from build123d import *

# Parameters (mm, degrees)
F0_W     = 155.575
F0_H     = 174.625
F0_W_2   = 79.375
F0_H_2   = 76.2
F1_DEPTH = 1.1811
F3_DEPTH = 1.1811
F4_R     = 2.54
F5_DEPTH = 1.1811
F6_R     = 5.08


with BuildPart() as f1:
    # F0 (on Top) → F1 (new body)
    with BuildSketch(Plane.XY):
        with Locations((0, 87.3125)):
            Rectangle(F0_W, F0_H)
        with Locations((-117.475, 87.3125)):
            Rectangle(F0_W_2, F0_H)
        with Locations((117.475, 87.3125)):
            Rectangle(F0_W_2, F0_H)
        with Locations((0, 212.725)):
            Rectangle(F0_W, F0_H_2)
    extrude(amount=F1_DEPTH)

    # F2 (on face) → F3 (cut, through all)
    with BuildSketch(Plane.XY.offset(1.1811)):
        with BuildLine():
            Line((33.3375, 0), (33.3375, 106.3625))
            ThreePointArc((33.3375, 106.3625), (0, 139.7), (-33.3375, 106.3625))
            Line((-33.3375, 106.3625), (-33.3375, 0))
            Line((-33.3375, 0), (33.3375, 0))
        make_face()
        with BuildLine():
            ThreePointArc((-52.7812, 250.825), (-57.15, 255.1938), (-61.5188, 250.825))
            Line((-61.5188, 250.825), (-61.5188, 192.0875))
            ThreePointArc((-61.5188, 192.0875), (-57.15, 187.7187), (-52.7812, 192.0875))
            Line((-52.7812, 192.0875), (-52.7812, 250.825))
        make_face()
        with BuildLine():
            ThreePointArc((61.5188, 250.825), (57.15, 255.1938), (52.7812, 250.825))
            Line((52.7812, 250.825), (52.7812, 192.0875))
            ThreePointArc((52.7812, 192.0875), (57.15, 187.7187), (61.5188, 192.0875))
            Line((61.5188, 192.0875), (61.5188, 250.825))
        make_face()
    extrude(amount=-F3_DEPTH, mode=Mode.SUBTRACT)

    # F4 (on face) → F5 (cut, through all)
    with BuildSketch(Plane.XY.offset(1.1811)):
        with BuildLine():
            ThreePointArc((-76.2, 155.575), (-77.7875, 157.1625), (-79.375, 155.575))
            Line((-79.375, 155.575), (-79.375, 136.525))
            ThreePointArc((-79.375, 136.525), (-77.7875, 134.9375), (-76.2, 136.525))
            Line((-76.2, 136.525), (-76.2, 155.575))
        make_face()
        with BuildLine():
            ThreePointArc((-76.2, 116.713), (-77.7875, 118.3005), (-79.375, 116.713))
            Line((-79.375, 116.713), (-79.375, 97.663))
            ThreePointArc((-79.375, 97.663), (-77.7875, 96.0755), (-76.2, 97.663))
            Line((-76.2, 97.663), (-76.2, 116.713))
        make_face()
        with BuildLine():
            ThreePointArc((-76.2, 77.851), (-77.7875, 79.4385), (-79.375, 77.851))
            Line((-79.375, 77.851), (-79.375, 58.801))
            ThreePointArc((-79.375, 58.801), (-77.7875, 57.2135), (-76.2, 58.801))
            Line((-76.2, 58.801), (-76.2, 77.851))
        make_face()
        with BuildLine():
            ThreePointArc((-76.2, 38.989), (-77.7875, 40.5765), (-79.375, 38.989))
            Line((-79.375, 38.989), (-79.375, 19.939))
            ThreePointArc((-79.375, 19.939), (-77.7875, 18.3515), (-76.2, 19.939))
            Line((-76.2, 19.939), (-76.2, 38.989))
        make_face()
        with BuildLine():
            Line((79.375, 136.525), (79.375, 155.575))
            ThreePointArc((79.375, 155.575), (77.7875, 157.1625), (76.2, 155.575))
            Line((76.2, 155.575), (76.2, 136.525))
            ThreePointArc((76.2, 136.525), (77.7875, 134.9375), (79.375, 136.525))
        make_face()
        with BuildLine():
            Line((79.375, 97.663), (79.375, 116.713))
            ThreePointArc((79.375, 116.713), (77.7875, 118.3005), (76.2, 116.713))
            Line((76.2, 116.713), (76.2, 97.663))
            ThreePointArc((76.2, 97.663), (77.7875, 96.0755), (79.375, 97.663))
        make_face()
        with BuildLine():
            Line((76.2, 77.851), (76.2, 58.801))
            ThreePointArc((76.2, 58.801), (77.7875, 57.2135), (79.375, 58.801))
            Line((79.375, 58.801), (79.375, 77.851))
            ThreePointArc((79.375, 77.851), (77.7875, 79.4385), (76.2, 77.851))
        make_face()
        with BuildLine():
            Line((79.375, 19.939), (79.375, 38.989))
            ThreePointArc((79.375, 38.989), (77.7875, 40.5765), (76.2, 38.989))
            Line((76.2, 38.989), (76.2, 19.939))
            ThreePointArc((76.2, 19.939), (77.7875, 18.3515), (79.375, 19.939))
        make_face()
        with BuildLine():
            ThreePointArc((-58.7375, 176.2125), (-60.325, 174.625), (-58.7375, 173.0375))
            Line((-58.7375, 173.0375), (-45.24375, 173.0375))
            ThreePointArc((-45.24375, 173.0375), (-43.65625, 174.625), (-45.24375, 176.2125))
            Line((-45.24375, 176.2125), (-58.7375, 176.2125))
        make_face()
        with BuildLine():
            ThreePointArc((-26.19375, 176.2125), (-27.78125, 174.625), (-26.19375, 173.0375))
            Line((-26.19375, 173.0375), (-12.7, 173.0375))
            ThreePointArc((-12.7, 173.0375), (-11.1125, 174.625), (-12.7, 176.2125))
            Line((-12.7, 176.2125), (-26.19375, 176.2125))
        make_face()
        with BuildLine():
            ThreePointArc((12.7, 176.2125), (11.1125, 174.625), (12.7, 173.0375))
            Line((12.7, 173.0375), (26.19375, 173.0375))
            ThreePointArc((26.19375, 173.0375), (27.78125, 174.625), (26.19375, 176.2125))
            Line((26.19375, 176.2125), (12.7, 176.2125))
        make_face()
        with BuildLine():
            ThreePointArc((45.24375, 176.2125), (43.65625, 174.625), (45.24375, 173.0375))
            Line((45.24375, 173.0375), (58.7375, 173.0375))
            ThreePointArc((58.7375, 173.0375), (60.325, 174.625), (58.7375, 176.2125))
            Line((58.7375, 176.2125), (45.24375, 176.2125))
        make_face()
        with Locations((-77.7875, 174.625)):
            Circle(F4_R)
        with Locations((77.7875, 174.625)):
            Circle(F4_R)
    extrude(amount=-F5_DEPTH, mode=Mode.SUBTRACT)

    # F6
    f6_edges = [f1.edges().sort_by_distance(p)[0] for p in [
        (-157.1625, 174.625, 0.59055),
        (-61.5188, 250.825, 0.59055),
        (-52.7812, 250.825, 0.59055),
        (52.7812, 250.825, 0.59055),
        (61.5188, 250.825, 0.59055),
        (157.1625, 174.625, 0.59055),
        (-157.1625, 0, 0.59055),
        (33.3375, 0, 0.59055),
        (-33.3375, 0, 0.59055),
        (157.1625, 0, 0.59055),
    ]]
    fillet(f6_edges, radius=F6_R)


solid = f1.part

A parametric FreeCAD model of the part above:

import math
import FreeCAD as App
import Part
import Sketcher

V = App.Vector
Q = App.Units.Quantity


def edges_at(feature, points):
    """Names of the edges that pass closest to the given points."""
    edges = feature.Shape.Edges
    near = lambda p: min(range(len(edges)), key=lambda i: edges[i].distToShape(Part.Vertex(*p))[0])
    return sorted({f"Edge{near(p) + 1}" for p in points})

doc = App.newDocument("Part")
body = doc.addObject("PartDesign::Body", "Body")

# Sketch on XY plane
sketch1 = body.newObject("Sketcher::SketchObject", "Sketch")
sketch1.AttachmentSupport = (doc.getObject("XY_Plane"), [""])
sketch1.MapMode = "FlatFace"
sketch1.addGeometry(Part.LineSegment(V(-157, 175, 0), V(-157, 0, 0)), False)
sketch1.addGeometry(Part.LineSegment(V(-157, 0, 0), V(157, 0, 0)), False)
sketch1.addGeometry(Part.LineSegment(V(157, 0, 0), V(157, 175, 0)), False)
sketch1.addGeometry(Part.LineSegment(V(157, 175, 0), V(78, 175, 0)), False)
sketch1.addGeometry(Part.LineSegment(V(78, 175, 0), V(78, 251, 0)), False)
sketch1.addGeometry(Part.LineSegment(V(78, 251, 0), V(-78, 251, 0)), False)
sketch1.addGeometry(Part.LineSegment(V(-78, 251, 0), V(-78, 175, 0)), False)
sketch1.addGeometry(Part.LineSegment(V(-78, 175, 0), V(-157, 175, 0)), False)
sketch1.addConstraint(Sketcher.Constraint("Coincident", 0, 2, 1, 1))
sketch1.addConstraint(Sketcher.Constraint("Coincident", 1, 2, 2, 1))
sketch1.addConstraint(Sketcher.Constraint("Coincident", 2, 2, 3, 1))
sketch1.addConstraint(Sketcher.Constraint("Coincident", 3, 2, 4, 1))
sketch1.addConstraint(Sketcher.Constraint("Coincident", 4, 2, 5, 1))
sketch1.addConstraint(Sketcher.Constraint("Coincident", 5, 2, 6, 1))
sketch1.addConstraint(Sketcher.Constraint("Coincident", 6, 2, 7, 1))
sketch1.addConstraint(Sketcher.Constraint("Coincident", 7, 2, 0, 1))
sketch1.addConstraint(Sketcher.Constraint("Vertical", 0))
sketch1.addConstraint(Sketcher.Constraint("Horizontal", 1))
sketch1.addConstraint(Sketcher.Constraint("Vertical", 2))
sketch1.addConstraint(Sketcher.Constraint("Horizontal", 3))
sketch1.addConstraint(Sketcher.Constraint("Vertical", 4))
sketch1.addConstraint(Sketcher.Constraint("Horizontal", 5))
sketch1.addConstraint(Sketcher.Constraint("Vertical", 6))
sketch1.addConstraint(Sketcher.Constraint("Horizontal", 7))
sketch1.addConstraint(Sketcher.Constraint("Symmetric", 0, 2, 1, 2, -1, 1))
sketch1.addConstraint(Sketcher.Constraint("Symmetric", 3, 2, 6, 2, -2))
sketch1.addConstraint(Sketcher.Constraint("DistanceY", 4, 1, 4, 2, Q("3 in")))
sketch1.addConstraint(Sketcher.Constraint("DistanceX", 1, 1, 1, 2, Q("12.375 in")))
sketch1.addConstraint(Sketcher.Constraint("DistanceX", 3, 2, 3, 1, Q("3.125 in")))
sketch1.addConstraint(Sketcher.Constraint("DistanceY", 0, 2, 0, 1, Q("6.875 in")))
pad1 = body.newObject("PartDesign::Pad", "Pad")
pad1.Profile = sketch1
pad1.Length = Q("0.0465 in")

# Sketch on XY plane
sketch2 = body.newObject("Sketcher::SketchObject", "Sketch001")
sketch2.AttachmentSupport = (doc.getObject("XY_Plane"), [""])
sketch2.MapMode = "FlatFace"
sketch2.AttachmentOffset = App.Placement(V(0, 0, 0.0465 * 25.4), App.Rotation())
sketch2.addGeometry(Part.LineSegment(V(33.3, 0, 0), V(33.3, 106.4, 0)), False)
sketch2.addGeometry(Part.ArcOfCircle(Part.Circle(V(0, 106.4, 0), V(0, 0, 1), 33.3), math.radians(0), math.radians(180)), False)
sketch2.addGeometry(Part.LineSegment(V(-33.3, 106.4, 0), V(-33.3, 0, 0)), False)
sketch2.addGeometry(Part.LineSegment(V(-33.3, 0, 0), V(33.3, 0, 0)), False)
sketch2.addGeometry(Part.ArcOfCircle(Part.Circle(V(-57.1, 250.8, 0), V(0, 0, 1), 4.4), math.radians(0), math.radians(180)), False)
sketch2.addGeometry(Part.LineSegment(V(-61.5, 250.8, 0), V(-61.5, 192.1, 0)), False)
sketch2.addGeometry(Part.ArcOfCircle(Part.Circle(V(-57.1, 192.1, 0), V(0, 0, 1), 4.4), math.radians(180), math.radians(360)), False)
sketch2.addGeometry(Part.LineSegment(V(-52.8, 192.1, 0), V(-52.8, 250.8, 0)), False)
sketch2.addGeometry(Part.ArcOfCircle(Part.Circle(V(57.1, 250.8, 0), V(0, 0, 1), 4.4), math.radians(0), math.radians(180)), False)
sketch2.addGeometry(Part.LineSegment(V(52.8, 250.8, 0), V(52.8, 192.1, 0)), False)
sketch2.addGeometry(Part.ArcOfCircle(Part.Circle(V(57.1, 192.1, 0), V(0, 0, 1), 4.4), math.radians(180), math.radians(360)), False)
sketch2.addGeometry(Part.LineSegment(V(61.5, 192.1, 0), V(61.5, 250.8, 0)), False)
sketch2.addConstraint(Sketcher.Constraint("Tangent", 0, 2, 1, 1))
sketch2.addConstraint(Sketcher.Constraint("Tangent", 1, 2, 2, 1))
sketch2.addConstraint(Sketcher.Constraint("Coincident", 2, 2, 3, 1))
sketch2.addConstraint(Sketcher.Constraint("Coincident", 3, 2, 0, 1))
sketch2.addConstraint(Sketcher.Constraint("Tangent", 4, 2, 5, 1))
sketch2.addConstraint(Sketcher.Constraint("Tangent", 5, 2, 6, 1))
sketch2.addConstraint(Sketcher.Constraint("Tangent", 6, 2, 7, 1))
sketch2.addConstraint(Sketcher.Constraint("Tangent", 7, 2, 4, 1))
sketch2.addConstraint(Sketcher.Constraint("Tangent", 8, 2, 9, 1))
sketch2.addConstraint(Sketcher.Constraint("Tangent", 9, 2, 10, 1))
sketch2.addConstraint(Sketcher.Constraint("Tangent", 10, 2, 11, 1))
sketch2.addConstraint(Sketcher.Constraint("Tangent", 11, 2, 8, 1))
sketch2.addConstraint(Sketcher.Constraint("Vertical", 0))
sketch2.addConstraint(Sketcher.Constraint("Vertical", 2))
sketch2.addConstraint(Sketcher.Constraint("Horizontal", 3))
sketch2.addConstraint(Sketcher.Constraint("Vertical", 5))
sketch2.addConstraint(Sketcher.Constraint("Vertical", 7))
sketch2.addConstraint(Sketcher.Constraint("Vertical", 9))
sketch2.addConstraint(Sketcher.Constraint("Vertical", 11))
sketch2.addConstraint(Sketcher.Constraint("Equal", 6, 8))
sketch2.addConstraint(Sketcher.Constraint("Symmetric", 2, 2, 3, 2, -1, 1))
sketch2.addConstraint(Sketcher.Constraint("Symmetric", 4, 3, 8, 3, -2))
sketch2.addConstraint(Sketcher.Constraint("Horizontal", 6, 3, 10, 3))
sketch2.addConstraint(Sketcher.Constraint("Radius", 1, Q("1.3125 in")))
sketch2.addConstraint(Sketcher.Constraint("Radius", 4, Q("0.172 in")))
sketch2.addConstraint(Sketcher.Constraint("DistanceX", 4, 3, 8, 3, Q("4.5 in")))
sketch2.addConstraint(Sketcher.Constraint("DistanceY", 0, 1, 0, 2, Q("4.1875 in")))
sketch2.addConstraint(Sketcher.Constraint("DistanceY", 5, 2, 5, 1, Q("2.3125 in")))
sketch2.addConstraint(Sketcher.Constraint("DistanceY", -1, 1, 4, 3, Q("9.875 in")))
pocket1 = body.newObject("PartDesign::Pocket", "Pocket")
pocket1.Profile = sketch2
pocket1.Type = "ThroughAll"

# Sketch on XY plane
sketch3 = body.newObject("Sketcher::SketchObject", "Sketch002")
sketch3.AttachmentSupport = (doc.getObject("XY_Plane"), [""])
sketch3.MapMode = "FlatFace"
sketch3.AttachmentOffset = App.Placement(V(0, 0, 0.0465 * 25.4), App.Rotation())
sketch3.addGeometry(Part.ArcOfCircle(Part.Circle(V(-77.8, 155.6, 0), V(0, 0, 1), 1.6), math.radians(0), math.radians(180)), False)
sketch3.addGeometry(Part.LineSegment(V(-79.4, 155.6, 0), V(-79.4, 136.5, 0)), False)
sketch3.addGeometry(Part.ArcOfCircle(Part.Circle(V(-77.8, 136.5, 0), V(0, 0, 1), 1.6), math.radians(180), math.radians(360)), False)
sketch3.addGeometry(Part.LineSegment(V(-76.2, 136.5, 0), V(-76.2, 155.6, 0)), False)
sketch3.addGeometry(Part.ArcOfCircle(Part.Circle(V(-77.8, 116.7, 0), V(0, 0, 1), 1.6), math.radians(0), math.radians(180)), False)
sketch3.addGeometry(Part.LineSegment(V(-79.4, 116.7, 0), V(-79.4, 97.7, 0)), False)
sketch3.addGeometry(Part.ArcOfCircle(Part.Circle(V(-77.8, 97.7, 0), V(0, 0, 1), 1.6), math.radians(180), math.radians(360)), False)
sketch3.addGeometry(Part.LineSegment(V(-76.2, 97.7, 0), V(-76.2, 116.7, 0)), False)
sketch3.addGeometry(Part.ArcOfCircle(Part.Circle(V(-77.8, 77.9, 0), V(0, 0, 1), 1.6), math.radians(0), math.radians(180)), False)
sketch3.addGeometry(Part.LineSegment(V(-79.4, 77.9, 0), V(-79.4, 58.8, 0)), False)
sketch3.addGeometry(Part.ArcOfCircle(Part.Circle(V(-77.8, 58.8, 0), V(0, 0, 1), 1.6), math.radians(180), math.radians(360)), False)
sketch3.addGeometry(Part.LineSegment(V(-76.2, 58.8, 0), V(-76.2, 77.9, 0)), False)
sketch3.addGeometry(Part.ArcOfCircle(Part.Circle(V(-77.8, 39, 0), V(0, 0, 1), 1.6), math.radians(0), math.radians(180)), False)
sketch3.addGeometry(Part.LineSegment(V(-79.4, 39, 0), V(-79.4, 19.9, 0)), False)
sketch3.addGeometry(Part.ArcOfCircle(Part.Circle(V(-77.8, 19.9, 0), V(0, 0, 1), 1.6), math.radians(180), math.radians(360)), False)
sketch3.addGeometry(Part.LineSegment(V(-76.2, 19.9, 0), V(-76.2, 39, 0)), False)
sketch3.addGeometry(Part.LineSegment(V(79.4, 136.5, 0), V(79.4, 155.6, 0)), False)
sketch3.addGeometry(Part.ArcOfCircle(Part.Circle(V(77.8, 155.6, 0), V(0, 0, 1), 1.6), math.radians(0), math.radians(180)), False)
sketch3.addGeometry(Part.LineSegment(V(76.2, 155.6, 0), V(76.2, 136.5, 0)), False)
sketch3.addGeometry(Part.ArcOfCircle(Part.Circle(V(77.8, 136.5, 0), V(0, 0, 1), 1.6), math.radians(180), math.radians(360)), False)
sketch3.addGeometry(Part.LineSegment(V(79.4, 97.7, 0), V(79.4, 116.7, 0)), False)
sketch3.addGeometry(Part.ArcOfCircle(Part.Circle(V(77.8, 116.7, 0), V(0, 0, 1), 1.6), math.radians(0), math.radians(180)), False)
sketch3.addGeometry(Part.LineSegment(V(76.2, 116.7, 0), V(76.2, 97.7, 0)), False)
sketch3.addGeometry(Part.ArcOfCircle(Part.Circle(V(77.8, 97.7, 0), V(0, 0, 1), 1.6), math.radians(180), math.radians(360)), False)
sketch3.addGeometry(Part.LineSegment(V(76.2, 77.9, 0), V(76.2, 58.8, 0)), False)
sketch3.addGeometry(Part.ArcOfCircle(Part.Circle(V(77.8, 58.8, 0), V(0, 0, 1), 1.6), math.radians(180), math.radians(360)), False)
sketch3.addGeometry(Part.LineSegment(V(79.4, 58.8, 0), V(79.4, 77.9, 0)), False)
sketch3.addGeometry(Part.ArcOfCircle(Part.Circle(V(77.8, 77.9, 0), V(0, 0, 1), 1.6), math.radians(0), math.radians(180)), False)
sketch3.addGeometry(Part.LineSegment(V(79.4, 19.9, 0), V(79.4, 39, 0)), False)
sketch3.addGeometry(Part.ArcOfCircle(Part.Circle(V(77.8, 39, 0), V(0, 0, 1), 1.6), math.radians(0), math.radians(180)), False)
sketch3.addGeometry(Part.LineSegment(V(76.2, 39, 0), V(76.2, 19.9, 0)), False)
sketch3.addGeometry(Part.ArcOfCircle(Part.Circle(V(77.8, 19.9, 0), V(0, 0, 1), 1.6), math.radians(180), math.radians(360)), False)
sketch3.addGeometry(Part.ArcOfCircle(Part.Circle(V(-58.7, 174.6, 0), V(0, 0, 1), 1.6), math.radians(90), math.radians(270)), False)
sketch3.addGeometry(Part.LineSegment(V(-58.7, 173, 0), V(-45.2, 173, 0)), False)
sketch3.addGeometry(Part.ArcOfCircle(Part.Circle(V(-45.2, 174.6, 0), V(0, 0, 1), 1.6), math.radians(-90), math.radians(90)), False)
sketch3.addGeometry(Part.LineSegment(V(-45.2, 176.2, 0), V(-58.7, 176.2, 0)), False)
sketch3.addGeometry(Part.ArcOfCircle(Part.Circle(V(-26.2, 174.6, 0), V(0, 0, 1), 1.6), math.radians(90), math.radians(270)), False)
sketch3.addGeometry(Part.LineSegment(V(-26.2, 173, 0), V(-12.7, 173, 0)), False)
sketch3.addGeometry(Part.ArcOfCircle(Part.Circle(V(-12.7, 174.6, 0), V(0, 0, 1), 1.6), math.radians(-90), math.radians(90)), False)
sketch3.addGeometry(Part.LineSegment(V(-12.7, 176.2, 0), V(-26.2, 176.2, 0)), False)
sketch3.addGeometry(Part.ArcOfCircle(Part.Circle(V(12.7, 174.6, 0), V(0, 0, 1), 1.6), math.radians(90), math.radians(270)), False)
sketch3.addGeometry(Part.LineSegment(V(12.7, 173, 0), V(26.2, 173, 0)), False)
sketch3.addGeometry(Part.ArcOfCircle(Part.Circle(V(26.2, 174.6, 0), V(0, 0, 1), 1.6), math.radians(-90), math.radians(90)), False)
sketch3.addGeometry(Part.LineSegment(V(26.2, 176.2, 0), V(12.7, 176.2, 0)), False)
sketch3.addGeometry(Part.ArcOfCircle(Part.Circle(V(45.2, 174.6, 0), V(0, 0, 1), 1.6), math.radians(90), math.radians(270)), False)
sketch3.addGeometry(Part.LineSegment(V(45.2, 173, 0), V(58.7, 173, 0)), False)
sketch3.addGeometry(Part.ArcOfCircle(Part.Circle(V(58.7, 174.6, 0), V(0, 0, 1), 1.6), math.radians(-90), math.radians(90)), False)
sketch3.addGeometry(Part.LineSegment(V(58.7, 176.2, 0), V(45.2, 176.2, 0)), False)
sketch3.addGeometry(Part.Circle(V(-77.8, 174.6, 0), V(0, 0, 1), 2.5), False)
sketch3.addGeometry(Part.Circle(V(77.8, 174.6, 0), V(0, 0, 1), 2.5), False)
sketch3.addConstraint(Sketcher.Constraint("Tangent", 0, 2, 1, 1))
sketch3.addConstraint(Sketcher.Constraint("Tangent", 1, 2, 2, 1))
sketch3.addConstraint(Sketcher.Constraint("Tangent", 2, 2, 3, 1))
sketch3.addConstraint(Sketcher.Constraint("Tangent", 3, 2, 0, 1))
sketch3.addConstraint(Sketcher.Constraint("Tangent", 4, 2, 5, 1))
sketch3.addConstraint(Sketcher.Constraint("Tangent", 5, 2, 6, 1))
sketch3.addConstraint(Sketcher.Constraint("Tangent", 6, 2, 7, 1))
sketch3.addConstraint(Sketcher.Constraint("Tangent", 7, 2, 4, 1))
sketch3.addConstraint(Sketcher.Constraint("Tangent", 8, 2, 9, 1))
sketch3.addConstraint(Sketcher.Constraint("Tangent", 9, 2, 10, 1))
sketch3.addConstraint(Sketcher.Constraint("Tangent", 10, 2, 11, 1))
sketch3.addConstraint(Sketcher.Constraint("Tangent", 11, 2, 8, 1))
sketch3.addConstraint(Sketcher.Constraint("Tangent", 12, 2, 13, 1))
sketch3.addConstraint(Sketcher.Constraint("Tangent", 13, 2, 14, 1))
sketch3.addConstraint(Sketcher.Constraint("Tangent", 14, 2, 15, 1))
sketch3.addConstraint(Sketcher.Constraint("Tangent", 15, 2, 12, 1))
sketch3.addConstraint(Sketcher.Constraint("Tangent", 16, 2, 17, 1))
sketch3.addConstraint(Sketcher.Constraint("Tangent", 17, 2, 18, 1))
sketch3.addConstraint(Sketcher.Constraint("Tangent", 18, 2, 19, 1))
sketch3.addConstraint(Sketcher.Constraint("Tangent", 19, 2, 16, 1))
sketch3.addConstraint(Sketcher.Constraint("Tangent", 20, 2, 21, 1))
sketch3.addConstraint(Sketcher.Constraint("Tangent", 21, 2, 22, 1))
sketch3.addConstraint(Sketcher.Constraint("Tangent", 22, 2, 23, 1))
sketch3.addConstraint(Sketcher.Constraint("Tangent", 23, 2, 20, 1))
sketch3.addConstraint(Sketcher.Constraint("Tangent", 24, 2, 25, 1))
sketch3.addConstraint(Sketcher.Constraint("Tangent", 25, 2, 26, 1))
sketch3.addConstraint(Sketcher.Constraint("Tangent", 26, 2, 27, 1))
sketch3.addConstraint(Sketcher.Constraint("Tangent", 27, 2, 24, 1))
sketch3.addConstraint(Sketcher.Constraint("Tangent", 28, 2, 29, 1))
sketch3.addConstraint(Sketcher.Constraint("Tangent", 29, 2, 30, 1))
sketch3.addConstraint(Sketcher.Constraint("Tangent", 30, 2, 31, 1))
sketch3.addConstraint(Sketcher.Constraint("Tangent", 31, 2, 28, 1))
sketch3.addConstraint(Sketcher.Constraint("Tangent", 32, 2, 33, 1))
sketch3.addConstraint(Sketcher.Constraint("Tangent", 33, 2, 34, 1))
sketch3.addConstraint(Sketcher.Constraint("Tangent", 34, 2, 35, 1))
sketch3.addConstraint(Sketcher.Constraint("Tangent", 35, 2, 32, 1))
sketch3.addConstraint(Sketcher.Constraint("Tangent", 36, 2, 37, 1))
sketch3.addConstraint(Sketcher.Constraint("Tangent", 37, 2, 38, 1))
sketch3.addConstraint(Sketcher.Constraint("Tangent", 38, 2, 39, 1))
sketch3.addConstraint(Sketcher.Constraint("Tangent", 39, 2, 36, 1))
sketch3.addConstraint(Sketcher.Constraint("Tangent", 40, 2, 41, 1))
sketch3.addConstraint(Sketcher.Constraint("Tangent", 41, 2, 42, 1))
sketch3.addConstraint(Sketcher.Constraint("Tangent", 42, 2, 43, 1))
sketch3.addConstraint(Sketcher.Constraint("Tangent", 43, 2, 40, 1))
sketch3.addConstraint(Sketcher.Constraint("Tangent", 44, 2, 45, 1))
sketch3.addConstraint(Sketcher.Constraint("Tangent", 45, 2, 46, 1))
sketch3.addConstraint(Sketcher.Constraint("Tangent", 46, 2, 47, 1))
sketch3.addConstraint(Sketcher.Constraint("Tangent", 47, 2, 44, 1))
sketch3.addConstraint(Sketcher.Constraint("Vertical", 1))
sketch3.addConstraint(Sketcher.Constraint("Vertical", 3))
sketch3.addConstraint(Sketcher.Constraint("Vertical", 5))
sketch3.addConstraint(Sketcher.Constraint("Vertical", 7))
sketch3.addConstraint(Sketcher.Constraint("Vertical", 9))
sketch3.addConstraint(Sketcher.Constraint("Vertical", 11))
sketch3.addConstraint(Sketcher.Constraint("Vertical", 13))
sketch3.addConstraint(Sketcher.Constraint("Vertical", 15))
sketch3.addConstraint(Sketcher.Constraint("Vertical", 16))
sketch3.addConstraint(Sketcher.Constraint("Vertical", 18))
sketch3.addConstraint(Sketcher.Constraint("Vertical", 20))
sketch3.addConstraint(Sketcher.Constraint("Vertical", 22))
sketch3.addConstraint(Sketcher.Constraint("Vertical", 24))
sketch3.addConstraint(Sketcher.Constraint("Vertical", 26))
sketch3.addConstraint(Sketcher.Constraint("Vertical", 28))
sketch3.addConstraint(Sketcher.Constraint("Vertical", 30))
sketch3.addConstraint(Sketcher.Constraint("Horizontal", 33))
sketch3.addConstraint(Sketcher.Constraint("Horizontal", 35))
sketch3.addConstraint(Sketcher.Constraint("Horizontal", 37))
sketch3.addConstraint(Sketcher.Constraint("Horizontal", 39))
sketch3.addConstraint(Sketcher.Constraint("Horizontal", 41))
sketch3.addConstraint(Sketcher.Constraint("Horizontal", 43))
sketch3.addConstraint(Sketcher.Constraint("Horizontal", 45))
sketch3.addConstraint(Sketcher.Constraint("Horizontal", 47))
sketch3.addConstraint(Sketcher.Constraint("Equal", 2, 4))
sketch3.addConstraint(Sketcher.Constraint("Equal", 6, 8))
sketch3.addConstraint(Sketcher.Constraint("Equal", 10, 12))
sketch3.addConstraint(Sketcher.Constraint("Equal", 14, 17))
sketch3.addConstraint(Sketcher.Constraint("Equal", 19, 21))
sketch3.addConstraint(Sketcher.Constraint("Equal", 23, 25))
sketch3.addConstraint(Sketcher.Constraint("Equal", 27, 29))
sketch3.addConstraint(Sketcher.Constraint("Equal", 31, 32))
sketch3.addConstraint(Sketcher.Constraint("Equal", 34, 36))
sketch3.addConstraint(Sketcher.Constraint("Equal", 38, 40))
sketch3.addConstraint(Sketcher.Constraint("Equal", 42, 44))
sketch3.addConstraint(Sketcher.Constraint("Equal", 48, 49))
sketch3.addConstraint(Sketcher.Constraint("Symmetric", 0, 3, 17, 3, -2))
sketch3.addConstraint(Sketcher.Constraint("Symmetric", 4, 3, 21, 3, -2))
sketch3.addConstraint(Sketcher.Constraint("Symmetric", 10, 3, 25, 3, -2))
sketch3.addConstraint(Sketcher.Constraint("Symmetric", 12, 3, 29, 3, -2))
sketch3.addConstraint(Sketcher.Constraint("Symmetric", 38, 3, 40, 3, -2))
sketch3.addConstraint(Sketcher.Constraint("Symmetric", 34, 3, 44, 3, -2))
sketch3.addConstraint(Sketcher.Constraint("Symmetric", 48, 3, 49, 3, -2))
sketch3.addConstraint(Sketcher.Constraint("Horizontal", 2, 3, 19, 3))
sketch3.addConstraint(Sketcher.Constraint("Horizontal", 6, 3, 23, 3))
sketch3.addConstraint(Sketcher.Constraint("Horizontal", 8, 3, 27, 3))
sketch3.addConstraint(Sketcher.Constraint("Horizontal", 14, 3, 31, 3))
sketch3.addConstraint(Sketcher.Constraint("Horizontal", 34, 3, 36, 3))
sketch3.addConstraint(Sketcher.Constraint("Horizontal", 46, 3, 48, 3))
sketch3.addConstraint(Sketcher.Constraint("Vertical", 2, 3, 4, 3))
sketch3.addConstraint(Sketcher.Constraint("Vertical", 6, 3, 8, 3))
sketch3.addConstraint(Sketcher.Constraint("Vertical", 10, 3, 12, 3))
sketch3.addConstraint(Sketcher.Constraint("Vertical", 14, 3, 48, 3))
sketch3.addConstraint(Sketcher.Constraint("Equal", 35, 37))
sketch3.addConstraint(Sketcher.Constraint("Equal", 39, 41))
sketch3.addConstraint(Sketcher.Constraint("Equal", 43, 45))
sketch3.addConstraint(Sketcher.Constraint("Equal", 3, 5))
sketch3.addConstraint(Sketcher.Constraint("Equal", 7, 9))
sketch3.addConstraint(Sketcher.Constraint("Equal", 11, 13))
sketch3.addConstraint(Sketcher.Constraint("Diameter", 48, Q("0.2 in")))
sketch3.addConstraint(Sketcher.Constraint("DistanceX", 2, 2, -1, 1, Q("3 in")))
sketch3.addConstraint(Sketcher.Constraint("Radius", 0, Q("0.0625 in")))
sketch3.addConstraint(Sketcher.Constraint("DistanceY", 1, 2, 1, 1, Q("0.75 in")))
sketch3.addConstraint(Sketcher.Constraint("DistanceX", 38, 3, -1, 1, Q("0.5 in")))
sketch3.addConstraint(Sketcher.Constraint("DistanceX", 33, 1, 33, 2, Q("0.53125 in")))
sketch3.addConstraint(Sketcher.Constraint("DistanceY", -1, 1, 0, 3, Q("6.125 in")))
sketch3.addConstraint(Sketcher.Constraint("DistanceY", -1, 1, 4, 3, Q("4.595 in")))
sketch3.addConstraint(Sketcher.Constraint("DistanceY", -1, 1, 8, 3, Q("3.065 in")))
sketch3.addConstraint(Sketcher.Constraint("DistanceY", -1, 1, 12, 3, Q("1.535 in")))
sketch3.addConstraint(Sketcher.Constraint("DistanceX", 32, 3, -1, 1, Q("2.3125 in")))
sketch3.addConstraint(Sketcher.Constraint("DistanceY", -1, 1, 32, 3, Q("6.875 in")))
pocket2 = body.newObject("PartDesign::Pocket", "Pocket001")
pocket2.Profile = sketch3
pocket2.Type = "ThroughAll"
doc.recompute()

fillet = body.newObject("PartDesign::Fillet", "Fillet")
fillet.Base = (pocket2, edges_at(pocket2, [
    (-157.162, 174.625, 0.591),
    (-61.519, 250.825, 0.591),
    (-52.781, 250.825, 0.591),
    (52.781, 250.825, 0.591),
    (61.519, 250.825, 0.591),
    (157.162, 174.625, 0.591),
    (-157.162, 0, 0.591),
    (33.337, 0, 0.591),
    (-33.337, 0, 0.591),
    (157.162, 0, 0.591),
]))
fillet.Radius = Q("0.2 in")

doc.recompute()
